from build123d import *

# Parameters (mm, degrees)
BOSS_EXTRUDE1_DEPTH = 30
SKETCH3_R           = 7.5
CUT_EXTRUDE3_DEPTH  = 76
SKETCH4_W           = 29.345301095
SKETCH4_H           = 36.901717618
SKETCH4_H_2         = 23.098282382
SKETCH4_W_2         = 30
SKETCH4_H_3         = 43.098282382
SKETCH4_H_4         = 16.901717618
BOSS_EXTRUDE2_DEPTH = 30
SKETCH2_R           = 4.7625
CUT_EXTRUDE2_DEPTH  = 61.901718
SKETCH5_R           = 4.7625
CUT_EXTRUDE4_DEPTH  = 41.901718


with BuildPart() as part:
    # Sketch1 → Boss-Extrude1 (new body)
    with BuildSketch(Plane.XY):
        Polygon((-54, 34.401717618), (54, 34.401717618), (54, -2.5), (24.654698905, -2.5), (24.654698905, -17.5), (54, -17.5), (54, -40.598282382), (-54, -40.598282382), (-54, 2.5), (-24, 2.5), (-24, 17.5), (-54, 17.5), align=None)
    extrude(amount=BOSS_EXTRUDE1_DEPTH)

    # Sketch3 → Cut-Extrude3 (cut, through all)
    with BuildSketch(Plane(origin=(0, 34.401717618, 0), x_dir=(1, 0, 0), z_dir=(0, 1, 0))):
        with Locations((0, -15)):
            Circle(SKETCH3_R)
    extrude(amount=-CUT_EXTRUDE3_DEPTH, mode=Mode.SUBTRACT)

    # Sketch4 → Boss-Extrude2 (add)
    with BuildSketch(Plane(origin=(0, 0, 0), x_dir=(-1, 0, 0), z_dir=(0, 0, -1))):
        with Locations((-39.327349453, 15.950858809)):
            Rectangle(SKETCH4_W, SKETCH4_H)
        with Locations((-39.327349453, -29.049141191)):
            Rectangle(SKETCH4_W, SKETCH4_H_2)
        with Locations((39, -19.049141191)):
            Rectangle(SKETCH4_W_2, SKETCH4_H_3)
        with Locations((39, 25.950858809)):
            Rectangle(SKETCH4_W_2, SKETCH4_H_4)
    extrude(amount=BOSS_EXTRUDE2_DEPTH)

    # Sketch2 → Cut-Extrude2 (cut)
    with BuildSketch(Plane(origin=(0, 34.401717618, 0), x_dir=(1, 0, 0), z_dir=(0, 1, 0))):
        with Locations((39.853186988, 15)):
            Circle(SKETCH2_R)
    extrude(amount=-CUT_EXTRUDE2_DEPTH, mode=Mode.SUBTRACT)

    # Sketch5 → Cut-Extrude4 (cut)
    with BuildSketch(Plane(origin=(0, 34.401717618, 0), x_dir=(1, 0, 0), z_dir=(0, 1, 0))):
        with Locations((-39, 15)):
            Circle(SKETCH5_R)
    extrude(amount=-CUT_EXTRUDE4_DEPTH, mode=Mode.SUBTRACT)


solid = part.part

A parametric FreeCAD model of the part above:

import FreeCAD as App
import Part
import Sketcher

V = App.Vector
Q = App.Units.Quantity

doc = App.newDocument("Part")
body = doc.addObject("PartDesign::Body", "Body")

# Sketch on XY plane
sketch1 = body.newObject("Sketcher::SketchObject", "Sketch")
sketch1.AttachmentSupport = (doc.getObject("XY_Plane"), [""])
sketch1.MapMode = "FlatFace"
sketch1.addGeometry([
    Part.LineSegment(V(54, 34, 0), V(-54, 34, 0)),  # 0
    Part.LineSegment(V(-54, 34, 0), V(-54, 18, 0)),  # 1
    Part.LineSegment(V(-54, 18, 0), V(-24, 18, 0)),  # 2
    Part.LineSegment(V(-24, 18, 0), V(-24, 2, 0)),  # 3
    Part.LineSegment(V(-24, 2, 0), V(-54, 2, 0)),  # 4
    Part.LineSegment(V(-54, 2, 0), V(-54, -41, 0)),  # 5
    Part.LineSegment(V(-54, -41, 0), V(54, -41, 0)),  # 6
    Part.LineSegment(V(54, -41, 0), V(54, -18, 0)),  # 7
    Part.LineSegment(V(54, -18, 0), V(25, -18, 0)),  # 8
    Part.LineSegment(V(25, -18, 0), V(25, -2, 0)),  # 9
    Part.LineSegment(V(25, -2, 0), V(54, -2, 0)),  # 10
    Part.LineSegment(V(54, -2, 0), V(54, 34, 0)),  # 11
], False)
sketch1.addConstraint([
    Sketcher.Constraint("Coincident", 0, 2, 1, 1),
    Sketcher.Constraint("Coincident", 1, 2, 2, 1),
    Sketcher.Constraint("Coincident", 2, 2, 3, 1),
    Sketcher.Constraint("Coincident", 3, 2, 4, 1),
    Sketcher.Constraint("Coincident", 4, 2, 5, 1),
    Sketcher.Constraint("Coincident", 5, 2, 6, 1),
    Sketcher.Constraint("Coincident", 6, 2, 7, 1),
    Sketcher.Constraint("Coincident", 7, 2, 8, 1),
    Sketcher.Constraint("Coincident", 8, 2, 9, 1),
    Sketcher.Constraint("Coincident", 9, 2, 10, 1),
    Sketcher.Constraint("Coincident", 10, 2, 11, 1),
    Sketcher.Constraint("Coincident", 11, 2, 0, 1),
    Sketcher.Constraint("Horizontal", 0),
    Sketcher.Constraint("Vertical", 1),
    Sketcher.Constraint("Horizontal", 2),
    Sketcher.Constraint("Vertical", 3),
    Sketcher.Constraint("Horizontal", 4),
    Sketcher.Constraint("Vertical", 5),
    Sketcher.Constraint("Horizontal", 6),
    Sketcher.Constraint("Vertical", 7),
    Sketcher.Constraint("Horizontal", 8),
    Sketcher.Constraint("Vertical", 9),
    Sketcher.Constraint("Horizontal", 10),
    Sketcher.Constraint("Vertical", 11),
    Sketcher.Constraint("Symmetric", 1, 2, 7, 2, -1, 1),
    Sketcher.Constraint("Symmetric", 4, 2, 10, 2, -1, 1),
    Sketcher.Constraint("Vertical", 1, 2, 4, 2),
    Sketcher.Constraint("DistanceX", 0, 2, 0, 1, Q("108 mm")),
    Sketcher.Constraint("DistanceX", 2, 1, 2, 2, Q("30 mm")),
    Sketcher.Constraint("DistanceY", 3, 2, 3, 1, Q("15 mm")),
    Sketcher.Constraint("DistanceY", 5, 2, 0, 2, Q("75 mm")),
    Sketcher.Constraint("DistanceY", 7, 2, 3, 2, Q("20 mm")),
    Sketcher.Constraint("DistanceX", 8, 2, 8, 1, Q("29.345301 mm")),
    Sketcher.Constraint("DistanceY", 1, 2, 1, 1, Q("16.901718 mm")),
])
pad1 = body.newObject("PartDesign::Pad", "Pad")
pad1.Profile = sketch1
pad1.Length = 30

# Sketch on XZ plane
sketch2 = body.newObject("Sketcher::SketchObject", "Sketch001")
sketch2.AttachmentSupport = (doc.getObject("XZ_Plane"), [""])
sketch2.MapMode = "FlatFace"
sketch2.AttachmentOffset = App.Placement(V(0, 0, -34.401718), App.Rotation())
sketch2.addGeometry(Part.Circle(V(0, 15, 0), V(0, 0, 1), 8), False)
sketch2.addConstraint([
    Sketcher.Constraint("PointOnObject", 0, 3, -2),
    Sketcher.Constraint("Diameter", 0, Q("15 mm")),
    Sketcher.Constraint("DistanceY", -1, 1, 0, 3, Q("15 mm")),
])
pocket1 = body.newObject("PartDesign::Pocket", "Pocket")
pocket1.Profile = sketch2
pocket1.Type = "ThroughAll"
pocket1.Reversed = True

# Sketch on XY plane
sketch3 = body.newObject("Sketcher::SketchObject", "Sketch002")
sketch3.AttachmentSupport = (doc.getObject("XY_Plane"), [""])
sketch3.MapMode = "FlatFace"
sketch3.addGeometry([
    Part.LineSegment(V(54, 34, 0), V(54, -2, 0)),  # 0
    Part.LineSegment(V(54, -2, 0), V(25, -2, 0)),  # 1
    Part.LineSegment(V(25, -2, 0), V(25, 34, 0)),  # 2
    Part.LineSegment(V(25, 34, 0), V(54, 34, 0)),  # 3
    Part.LineSegment(V(54, -18, 0), V(54, -41, 0)),  # 4
    Part.LineSegment(V(54, -41, 0), V(25, -41, 0)),  # 5
    Part.LineSegment(V(25, -41, 0), V(25, -18, 0)),  # 6
    Part.LineSegment(V(25, -18, 0), V(54, -18, 0)),  # 7
    Part.LineSegment(V(-24, 2, 0), V(-24, -41, 0)),  # 8
    Part.LineSegment(V(-24, -41, 0), V(-54, -41, 0)),  # 9
    Part.LineSegment(V(-54, -41, 0), V(-54, 2, 0)),  # 10
    Part.LineSegment(V(-54, 2, 0), V(-24, 2, 0)),  # 11
    Part.LineSegment(V(-24, 34, 0), V(-24, 18, 0)),  # 12
    Part.LineSegment(V(-24, 18, 0), V(-54, 18, 0)),  # 13
    Part.LineSegment(V(-54, 18, 0), V(-54, 34, 0)),  # 14
    Part.LineSegment(V(-54, 34, 0), V(-24, 34, 0)),  # 15
], False)
sketch3.addConstraint([
    Sketcher.Constraint("Coincident", 0, 2, 1, 1),
    Sketcher.Constraint("Coincident", 1, 2, 2, 1),
    Sketcher.Constraint("Coincident", 2, 2, 3, 1),
    Sketcher.Constraint("Coincident", 3, 2, 0, 1),
    Sketcher.Constraint("Coincident", 4, 2, 5, 1),
    Sketcher.Constraint("Coincident", 5, 2, 6, 1),
    Sketcher.Constraint("Coincident", 6, 2, 7, 1),
    Sketcher.Constraint("Coincident", 7, 2, 4, 1),
    Sketcher.Constraint("Coincident", 8, 2, 9, 1),
    Sketcher.Constraint("Coincident", 9, 2, 10, 1),
    Sketcher.Constraint("Coincident", 10, 2, 11, 1),
    Sketcher.Constraint("Coincident", 11, 2, 8, 1),
    Sketcher.Constraint("Coincident", 12, 2, 13, 1),
    Sketcher.Constraint("Coincident", 13, 2, 14, 1),
    Sketcher.Constraint("Coincident", 14, 2, 15, 1),
    Sketcher.Constraint("Coincident", 15, 2, 12, 1),
    Sketcher.Constraint("Vertical", 0),
    Sketcher.Constraint("Horizontal", 1),
    Sketcher.Constraint("Vertical", 2),
    Sketcher.Constraint("Horizontal", 3),
    Sketcher.Constraint("Vertical", 4),
    Sketcher.Constraint("Horizontal", 5),
    Sketcher.Constraint("Vertical", 6),
    Sketcher.Constraint("Horizontal", 7),
    Sketcher.Constraint("Vertical", 8),
    Sketcher.Constraint("Horizontal", 9),
    Sketcher.Constraint("Vertical", 10),
    Sketcher.Constraint("Horizontal", 11),
    Sketcher.Constraint("Vertical", 12),
    Sketcher.Constraint("Horizontal", 13),
    Sketcher.Constraint("Vertical", 14),
    Sketcher.Constraint("Horizontal", 15),
    Sketcher.Constraint("Symmetric", 0, 2, 10, 2, -1, 1),
    Sketcher.Constraint("Symmetric", 7, 2, 13, 2, -1, 1),
    Sketcher.Constraint("Symmetric", 4, 2, 9, 2, -2),
    Sketcher.Constraint("Horizontal", 3, 2, 14, 2),
    Sketcher.Constraint("Vertical", 2, 2, 5, 2),
    Sketcher.Constraint("Vertical", 11, 2, 12, 2),
    Sketcher.Constraint("DistanceX", 9, 2, 9, 1, Q("30 mm")),
    Sketcher.Constraint("DistanceX", -1, 1, 0, 2, Q("54 mm")),
    Sketcher.Constraint("DistanceY", 4, 2, 3, 2, Q("75 mm")),
    Sketcher.Constraint("DistanceY", 6, 2, 1, 2, Q("15 mm")),
    Sketcher.Constraint("DistanceY", 1, 2, 10, 2, Q("5 mm")),
    Sketcher.Constraint("DistanceX", 1, 2, 1, 1, Q("29.345301 mm")),
    Sketcher.Constraint("DistanceY", 0, 2, 0, 1, Q("36.901718 mm")),
])
pad2 = body.newObject("PartDesign::Pad", "Pad001")
pad2.Profile = sketch3
pad2.Length = 30
pad2.Reversed = True

# Sketch on XZ plane
sketch4 = body.newObject("Sketcher::SketchObject", "Sketch003")
sketch4.AttachmentSupport = (doc.getObject("XZ_Plane"), [""])
sketch4.MapMode = "FlatFace"
sketch4.AttachmentOffset = App.Placement(V(0, 0, -34.401718), App.Rotation())
sketch4.addGeometry(Part.Circle(V(39.9, -15, 0), V(0, 0, 1), 4.8), False)
sketch4.addConstraint([
    Sketcher.Constraint("Diameter", 0, Q("9.525 mm")),
    Sketcher.Constraint("DistanceY", 0, 3, -1, 1, Q("15 mm")),
    Sketcher.Constraint("DistanceX", -1, 1, 0, 3, Q("39.853187 mm")),
])
pocket2 = body.newObject("PartDesign::Pocket", "Pocket001")
pocket2.Profile = sketch4
pocket2.Length = 61.901718
pocket2.Reversed = True

# Sketch on XZ plane
sketch5 = body.newObject("Sketcher::SketchObject", "Sketch004")
sketch5.AttachmentSupport = (doc.getObject("XZ_Plane"), [""])
sketch5.MapMode = "FlatFace"
sketch5.AttachmentOffset = App.Placement(V(0, 0, -34.401718), App.Rotation())
sketch5.addGeometry(Part.Circle(V(-39, -15, 0), V(0, 0, 1), 4.8), False)
sketch5.addConstraint([
    Sketcher.Constraint("Diameter", 0, Q("9.525 mm")),
    Sketcher.Constraint("DistanceX", 0, 3, -1, 1, Q("39 mm")),
    Sketcher.Constraint("DistanceY", 0, 3, -1, 1, Q("15 mm")),
])
pocket3 = body.newObject("PartDesign::Pocket", "Pocket002")
pocket3.Profile = sketch5
pocket3.Length = 41.901718
pocket3.Reversed = True

doc.recompute()
